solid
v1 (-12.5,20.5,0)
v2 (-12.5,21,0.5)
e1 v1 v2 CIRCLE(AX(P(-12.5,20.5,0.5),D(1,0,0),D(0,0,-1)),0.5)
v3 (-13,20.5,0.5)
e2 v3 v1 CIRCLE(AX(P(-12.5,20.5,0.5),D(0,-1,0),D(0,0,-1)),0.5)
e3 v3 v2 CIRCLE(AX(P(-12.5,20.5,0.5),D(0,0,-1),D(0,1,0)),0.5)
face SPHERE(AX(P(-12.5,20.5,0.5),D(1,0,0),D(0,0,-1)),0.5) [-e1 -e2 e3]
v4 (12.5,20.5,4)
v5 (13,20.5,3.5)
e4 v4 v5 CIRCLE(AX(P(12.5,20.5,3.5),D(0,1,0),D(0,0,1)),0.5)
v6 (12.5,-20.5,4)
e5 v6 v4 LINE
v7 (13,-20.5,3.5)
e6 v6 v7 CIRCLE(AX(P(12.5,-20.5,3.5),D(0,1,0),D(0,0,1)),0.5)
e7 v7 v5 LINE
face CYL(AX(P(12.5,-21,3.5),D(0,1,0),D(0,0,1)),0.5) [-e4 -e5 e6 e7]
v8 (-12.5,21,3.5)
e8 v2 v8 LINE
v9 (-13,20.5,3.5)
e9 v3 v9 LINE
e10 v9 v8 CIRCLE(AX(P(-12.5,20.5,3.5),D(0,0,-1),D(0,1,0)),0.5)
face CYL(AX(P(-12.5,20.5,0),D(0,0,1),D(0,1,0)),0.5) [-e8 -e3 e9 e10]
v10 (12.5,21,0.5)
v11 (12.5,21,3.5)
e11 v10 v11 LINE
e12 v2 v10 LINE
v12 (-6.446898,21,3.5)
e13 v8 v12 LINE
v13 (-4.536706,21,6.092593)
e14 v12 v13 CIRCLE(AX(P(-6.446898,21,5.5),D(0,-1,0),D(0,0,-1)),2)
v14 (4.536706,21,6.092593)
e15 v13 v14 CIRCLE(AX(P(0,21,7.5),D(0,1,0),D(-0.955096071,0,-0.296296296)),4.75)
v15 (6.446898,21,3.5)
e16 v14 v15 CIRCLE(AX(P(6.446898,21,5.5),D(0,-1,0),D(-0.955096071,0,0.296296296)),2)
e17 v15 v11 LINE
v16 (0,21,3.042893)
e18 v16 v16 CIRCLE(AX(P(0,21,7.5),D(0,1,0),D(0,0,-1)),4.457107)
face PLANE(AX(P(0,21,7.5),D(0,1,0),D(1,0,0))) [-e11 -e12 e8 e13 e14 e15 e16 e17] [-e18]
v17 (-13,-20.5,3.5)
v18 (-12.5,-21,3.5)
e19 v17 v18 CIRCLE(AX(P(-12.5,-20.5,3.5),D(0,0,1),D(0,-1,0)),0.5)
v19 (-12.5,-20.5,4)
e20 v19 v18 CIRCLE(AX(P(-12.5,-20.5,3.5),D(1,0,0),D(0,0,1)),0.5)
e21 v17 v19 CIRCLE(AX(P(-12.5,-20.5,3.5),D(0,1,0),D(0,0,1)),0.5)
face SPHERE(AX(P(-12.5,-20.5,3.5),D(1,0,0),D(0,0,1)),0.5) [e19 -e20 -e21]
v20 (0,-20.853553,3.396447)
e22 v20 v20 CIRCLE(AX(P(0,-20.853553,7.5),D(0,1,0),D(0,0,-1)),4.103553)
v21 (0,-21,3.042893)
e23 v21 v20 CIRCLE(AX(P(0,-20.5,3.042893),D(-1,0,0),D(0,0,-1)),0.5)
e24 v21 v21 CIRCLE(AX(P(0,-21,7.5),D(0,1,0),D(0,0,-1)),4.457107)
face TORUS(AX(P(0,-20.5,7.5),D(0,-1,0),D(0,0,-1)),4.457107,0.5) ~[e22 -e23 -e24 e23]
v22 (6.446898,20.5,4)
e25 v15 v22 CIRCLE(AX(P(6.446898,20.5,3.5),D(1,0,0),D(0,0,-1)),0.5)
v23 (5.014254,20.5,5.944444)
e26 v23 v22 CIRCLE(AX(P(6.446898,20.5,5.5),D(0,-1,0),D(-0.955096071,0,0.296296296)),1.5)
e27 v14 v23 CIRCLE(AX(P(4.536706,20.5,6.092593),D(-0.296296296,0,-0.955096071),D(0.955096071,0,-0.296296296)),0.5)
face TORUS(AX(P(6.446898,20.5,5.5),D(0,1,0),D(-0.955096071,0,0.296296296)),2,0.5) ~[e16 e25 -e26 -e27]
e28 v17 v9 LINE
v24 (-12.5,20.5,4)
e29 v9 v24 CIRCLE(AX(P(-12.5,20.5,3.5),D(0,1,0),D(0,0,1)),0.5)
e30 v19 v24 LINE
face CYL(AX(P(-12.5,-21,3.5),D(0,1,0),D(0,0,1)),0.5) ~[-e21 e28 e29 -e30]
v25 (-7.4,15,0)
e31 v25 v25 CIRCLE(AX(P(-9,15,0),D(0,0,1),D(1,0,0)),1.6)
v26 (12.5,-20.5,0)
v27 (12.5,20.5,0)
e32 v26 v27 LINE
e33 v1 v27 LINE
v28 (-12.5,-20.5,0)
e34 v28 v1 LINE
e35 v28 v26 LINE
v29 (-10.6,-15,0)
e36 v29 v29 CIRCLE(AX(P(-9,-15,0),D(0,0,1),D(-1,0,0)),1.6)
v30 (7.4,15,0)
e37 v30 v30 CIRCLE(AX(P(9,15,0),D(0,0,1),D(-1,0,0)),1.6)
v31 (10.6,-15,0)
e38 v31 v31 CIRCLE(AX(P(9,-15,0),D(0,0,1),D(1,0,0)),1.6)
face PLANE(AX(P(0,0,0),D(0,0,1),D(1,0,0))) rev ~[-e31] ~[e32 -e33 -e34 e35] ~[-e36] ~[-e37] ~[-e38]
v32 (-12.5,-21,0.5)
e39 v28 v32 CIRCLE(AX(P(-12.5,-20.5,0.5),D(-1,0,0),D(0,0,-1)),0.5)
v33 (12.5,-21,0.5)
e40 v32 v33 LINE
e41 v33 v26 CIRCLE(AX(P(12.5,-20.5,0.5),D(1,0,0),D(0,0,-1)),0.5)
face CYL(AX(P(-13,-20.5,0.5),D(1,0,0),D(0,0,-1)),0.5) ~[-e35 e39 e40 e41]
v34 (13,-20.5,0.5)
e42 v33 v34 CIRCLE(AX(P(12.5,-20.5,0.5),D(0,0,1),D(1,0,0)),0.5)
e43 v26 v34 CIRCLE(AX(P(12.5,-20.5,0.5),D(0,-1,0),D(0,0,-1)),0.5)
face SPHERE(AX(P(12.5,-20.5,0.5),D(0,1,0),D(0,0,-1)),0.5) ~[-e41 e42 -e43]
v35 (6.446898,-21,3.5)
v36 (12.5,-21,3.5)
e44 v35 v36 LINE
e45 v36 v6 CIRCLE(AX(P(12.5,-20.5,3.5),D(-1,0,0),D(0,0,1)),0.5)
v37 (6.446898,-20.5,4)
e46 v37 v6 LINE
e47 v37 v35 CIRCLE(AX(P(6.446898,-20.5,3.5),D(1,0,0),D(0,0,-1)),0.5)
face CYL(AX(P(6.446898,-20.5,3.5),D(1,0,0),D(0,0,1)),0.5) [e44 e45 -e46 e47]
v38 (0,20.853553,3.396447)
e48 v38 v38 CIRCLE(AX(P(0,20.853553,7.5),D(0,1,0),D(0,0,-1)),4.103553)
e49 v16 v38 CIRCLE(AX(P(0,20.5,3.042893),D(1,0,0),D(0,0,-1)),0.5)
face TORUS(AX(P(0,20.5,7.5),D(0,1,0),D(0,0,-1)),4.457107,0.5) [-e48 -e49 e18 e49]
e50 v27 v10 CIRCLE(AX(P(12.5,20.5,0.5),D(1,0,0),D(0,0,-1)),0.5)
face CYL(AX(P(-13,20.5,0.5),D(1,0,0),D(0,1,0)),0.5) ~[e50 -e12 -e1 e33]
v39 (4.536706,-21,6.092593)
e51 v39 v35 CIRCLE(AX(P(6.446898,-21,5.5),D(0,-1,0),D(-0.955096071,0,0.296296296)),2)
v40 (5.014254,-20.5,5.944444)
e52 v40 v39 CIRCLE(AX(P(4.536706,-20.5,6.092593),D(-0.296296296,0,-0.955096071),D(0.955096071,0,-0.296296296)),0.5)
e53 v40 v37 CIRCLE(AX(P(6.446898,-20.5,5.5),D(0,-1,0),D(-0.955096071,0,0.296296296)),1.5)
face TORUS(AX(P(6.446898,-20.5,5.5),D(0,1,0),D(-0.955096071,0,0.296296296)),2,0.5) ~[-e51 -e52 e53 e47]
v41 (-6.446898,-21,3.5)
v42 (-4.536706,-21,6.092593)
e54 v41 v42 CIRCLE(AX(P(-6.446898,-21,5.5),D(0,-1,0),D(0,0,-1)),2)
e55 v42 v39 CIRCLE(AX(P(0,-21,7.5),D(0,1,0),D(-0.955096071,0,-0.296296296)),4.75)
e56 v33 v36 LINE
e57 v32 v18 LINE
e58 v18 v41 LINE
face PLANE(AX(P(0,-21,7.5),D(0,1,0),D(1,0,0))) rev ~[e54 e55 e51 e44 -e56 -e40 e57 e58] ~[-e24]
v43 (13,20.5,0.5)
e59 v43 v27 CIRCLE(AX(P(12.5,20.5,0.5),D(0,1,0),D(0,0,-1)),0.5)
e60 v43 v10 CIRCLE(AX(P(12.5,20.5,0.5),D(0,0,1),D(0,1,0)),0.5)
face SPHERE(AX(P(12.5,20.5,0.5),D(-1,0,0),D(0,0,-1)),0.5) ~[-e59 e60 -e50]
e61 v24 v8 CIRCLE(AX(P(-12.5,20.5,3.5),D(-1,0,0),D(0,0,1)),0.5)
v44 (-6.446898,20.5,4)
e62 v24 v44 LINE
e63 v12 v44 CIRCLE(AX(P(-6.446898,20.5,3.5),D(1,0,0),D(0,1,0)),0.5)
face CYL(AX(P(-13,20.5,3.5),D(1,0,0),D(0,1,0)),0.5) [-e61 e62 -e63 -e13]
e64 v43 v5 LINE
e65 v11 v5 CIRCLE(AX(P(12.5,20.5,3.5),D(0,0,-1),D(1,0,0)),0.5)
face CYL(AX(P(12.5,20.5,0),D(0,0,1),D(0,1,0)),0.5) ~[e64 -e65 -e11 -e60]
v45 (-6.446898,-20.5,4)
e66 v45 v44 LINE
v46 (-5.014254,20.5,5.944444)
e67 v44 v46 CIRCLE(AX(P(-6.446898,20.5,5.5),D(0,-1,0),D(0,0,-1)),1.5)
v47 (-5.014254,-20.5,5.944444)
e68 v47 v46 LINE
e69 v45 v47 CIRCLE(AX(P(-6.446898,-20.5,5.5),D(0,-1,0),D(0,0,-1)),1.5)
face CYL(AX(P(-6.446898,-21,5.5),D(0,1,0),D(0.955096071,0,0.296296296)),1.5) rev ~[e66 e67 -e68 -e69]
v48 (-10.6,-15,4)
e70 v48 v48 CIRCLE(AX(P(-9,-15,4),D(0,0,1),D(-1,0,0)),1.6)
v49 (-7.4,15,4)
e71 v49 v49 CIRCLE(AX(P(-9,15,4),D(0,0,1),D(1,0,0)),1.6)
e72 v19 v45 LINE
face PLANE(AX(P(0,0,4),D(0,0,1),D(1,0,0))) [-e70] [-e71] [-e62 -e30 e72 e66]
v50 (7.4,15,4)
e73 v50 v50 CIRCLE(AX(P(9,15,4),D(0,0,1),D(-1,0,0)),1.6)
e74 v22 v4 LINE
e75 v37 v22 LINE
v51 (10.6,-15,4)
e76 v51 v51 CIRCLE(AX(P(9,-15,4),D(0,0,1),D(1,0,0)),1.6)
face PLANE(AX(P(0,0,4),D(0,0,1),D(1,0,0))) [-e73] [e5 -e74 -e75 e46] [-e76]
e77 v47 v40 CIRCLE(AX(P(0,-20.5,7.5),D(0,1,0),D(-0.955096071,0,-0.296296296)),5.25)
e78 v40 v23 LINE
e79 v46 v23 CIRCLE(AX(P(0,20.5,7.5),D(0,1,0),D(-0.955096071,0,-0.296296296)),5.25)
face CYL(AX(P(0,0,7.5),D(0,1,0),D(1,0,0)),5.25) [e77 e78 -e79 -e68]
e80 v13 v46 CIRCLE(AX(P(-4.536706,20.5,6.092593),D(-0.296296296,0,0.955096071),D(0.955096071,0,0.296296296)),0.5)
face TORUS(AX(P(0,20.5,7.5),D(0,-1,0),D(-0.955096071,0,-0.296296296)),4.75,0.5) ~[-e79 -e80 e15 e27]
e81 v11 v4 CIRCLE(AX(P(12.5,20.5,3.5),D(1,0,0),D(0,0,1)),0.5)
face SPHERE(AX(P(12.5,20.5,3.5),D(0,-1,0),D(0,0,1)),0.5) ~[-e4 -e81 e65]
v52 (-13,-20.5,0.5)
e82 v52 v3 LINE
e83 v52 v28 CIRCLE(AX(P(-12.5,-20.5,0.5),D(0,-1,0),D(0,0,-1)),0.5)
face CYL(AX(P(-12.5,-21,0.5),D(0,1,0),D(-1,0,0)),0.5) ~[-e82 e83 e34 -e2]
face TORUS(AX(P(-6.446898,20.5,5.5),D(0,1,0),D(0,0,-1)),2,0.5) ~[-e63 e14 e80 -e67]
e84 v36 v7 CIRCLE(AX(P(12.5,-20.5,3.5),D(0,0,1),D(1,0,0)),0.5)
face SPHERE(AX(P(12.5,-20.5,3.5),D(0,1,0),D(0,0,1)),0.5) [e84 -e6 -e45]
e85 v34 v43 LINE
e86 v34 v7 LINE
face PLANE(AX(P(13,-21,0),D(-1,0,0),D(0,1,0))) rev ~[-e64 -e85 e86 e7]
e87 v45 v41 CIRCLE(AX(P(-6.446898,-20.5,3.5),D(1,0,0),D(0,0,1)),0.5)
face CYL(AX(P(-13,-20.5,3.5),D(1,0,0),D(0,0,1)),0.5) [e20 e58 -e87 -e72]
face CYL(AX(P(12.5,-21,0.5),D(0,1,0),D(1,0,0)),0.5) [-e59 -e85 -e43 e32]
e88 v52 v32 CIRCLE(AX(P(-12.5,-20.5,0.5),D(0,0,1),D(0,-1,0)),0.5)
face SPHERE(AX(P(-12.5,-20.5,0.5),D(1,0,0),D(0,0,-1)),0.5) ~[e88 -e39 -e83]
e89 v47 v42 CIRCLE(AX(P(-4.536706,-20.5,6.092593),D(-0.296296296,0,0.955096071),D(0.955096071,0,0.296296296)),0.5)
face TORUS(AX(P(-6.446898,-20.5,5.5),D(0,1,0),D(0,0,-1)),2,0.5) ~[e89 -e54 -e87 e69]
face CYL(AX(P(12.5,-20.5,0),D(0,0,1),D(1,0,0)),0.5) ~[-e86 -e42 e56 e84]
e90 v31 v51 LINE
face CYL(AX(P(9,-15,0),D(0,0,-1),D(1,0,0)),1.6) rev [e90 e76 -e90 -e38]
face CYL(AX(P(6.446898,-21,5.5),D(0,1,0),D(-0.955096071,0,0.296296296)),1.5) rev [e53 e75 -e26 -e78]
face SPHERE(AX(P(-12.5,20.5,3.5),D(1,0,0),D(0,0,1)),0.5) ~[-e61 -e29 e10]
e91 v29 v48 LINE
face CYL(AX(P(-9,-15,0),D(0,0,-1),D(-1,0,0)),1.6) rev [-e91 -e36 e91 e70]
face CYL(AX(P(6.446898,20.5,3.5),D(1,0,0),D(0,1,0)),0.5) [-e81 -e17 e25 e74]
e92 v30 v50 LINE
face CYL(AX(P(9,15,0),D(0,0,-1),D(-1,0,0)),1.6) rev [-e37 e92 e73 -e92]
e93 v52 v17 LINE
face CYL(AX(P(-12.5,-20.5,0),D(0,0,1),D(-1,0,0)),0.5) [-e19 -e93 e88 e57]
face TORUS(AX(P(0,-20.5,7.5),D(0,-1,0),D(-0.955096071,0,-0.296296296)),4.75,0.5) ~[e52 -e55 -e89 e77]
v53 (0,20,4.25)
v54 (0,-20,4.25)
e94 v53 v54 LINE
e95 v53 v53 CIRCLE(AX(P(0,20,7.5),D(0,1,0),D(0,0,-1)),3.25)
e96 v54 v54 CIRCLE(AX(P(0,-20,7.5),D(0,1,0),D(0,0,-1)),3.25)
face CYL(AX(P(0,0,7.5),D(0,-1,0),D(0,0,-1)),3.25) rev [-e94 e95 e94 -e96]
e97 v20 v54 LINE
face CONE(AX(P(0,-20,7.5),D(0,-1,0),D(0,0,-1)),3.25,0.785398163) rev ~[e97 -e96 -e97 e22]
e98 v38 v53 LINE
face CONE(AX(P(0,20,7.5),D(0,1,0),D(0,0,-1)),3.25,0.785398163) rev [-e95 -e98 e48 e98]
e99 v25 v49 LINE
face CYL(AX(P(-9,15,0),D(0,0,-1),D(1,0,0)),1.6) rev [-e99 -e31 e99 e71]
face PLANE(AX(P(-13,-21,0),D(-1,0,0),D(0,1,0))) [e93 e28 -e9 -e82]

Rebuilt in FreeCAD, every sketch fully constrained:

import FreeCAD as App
import Part
import Sketcher


def edges_at(feature, points):
    """Names of the edges that pass closest to the given points."""
    edges = feature.Shape.Edges
    near = lambda p: min(range(len(edges)), key=lambda i: edges[i].distToShape(Part.Vertex(*p))[0])
    return sorted({f"Edge{near(p) + 1}" for p in points})


def add_polygon(sketch, points):
    """Adds a closed chain of lines whose ends are joined by coincident constraints."""
    first, n = sketch.GeometryCount, len(points)
    for a, b in zip(points, points[1:] + points[:1]):
        sketch.addGeometry(Part.LineSegment(App.Vector(*a, 0), App.Vector(*b, 0)), False)
    for i in range(n):
        sketch.addConstraint(Sketcher.Constraint("Coincident", first + i, 2, first + (i + 1) % n, 1))

doc = App.newDocument("Part")
params = doc.addObject("Spreadsheet::Sheet", "Params")
for row, (alias, value) in enumerate([
    ("sketch1_diameter", "3.2 mm"),
    ("sketch1_width", "26 mm"),
    ("sketch1_height", "42 mm"),
    ("pad1_length", "4 mm"),
    ("sketch2_diameter", "10.5 mm"),
    ("sketch2_diameter2", "6.5 mm"),
    ("pad2_length", "42 mm"),
    ("fillet_radius", "1.5 mm"),
    ("chamfer_size", "1 mm"),
    ("fillet2_radius", "0.5 mm"),
], start=1):
    params.set(f"A{row}", alias)
    params.set(f"B{row}", "=" + value)
    params.setAlias(f"B{row}", alias)

body = doc.addObject("PartDesign::Body", "Body")

sketch1 = doc.addObject("Sketcher::SketchObject", "Sketch")
body.addObject(sketch1)
sketch1.AttachmentSupport = (doc.XY_Plane, [""])
sketch1.MapMode = "FlatFace"
add_polygon(sketch1, [(-13, 21), (-13, -21), (13, -21), (13, 21)])
sketch1.addGeometry(Part.Circle(App.Vector(-9, -15, 0), App.Vector(0, 0, 1), 1.6), False)
sketch1.addGeometry(Part.Circle(App.Vector(9, -15, 0), App.Vector(0, 0, 1), 1.6), False)
sketch1.addGeometry(Part.Circle(App.Vector(-9, 15, 0), App.Vector(0, 0, 1), 1.6), False)
sketch1.addGeometry(Part.Circle(App.Vector(9, 15, 0), App.Vector(0, 0, 1), 1.6), False)
sketch1.addConstraint(Sketcher.Constraint("Vertical", 0))
sketch1.addConstraint(Sketcher.Constraint("Horizontal", 1))
sketch1.addConstraint(Sketcher.Constraint("Vertical", 2))
sketch1.addConstraint(Sketcher.Constraint("Horizontal", 3))
sketch1.addConstraint(Sketcher.Constraint("Equal", 4, 5))
sketch1.addConstraint(Sketcher.Constraint("Equal", 5, 6))
sketch1.addConstraint(Sketcher.Constraint("Equal", 6, 7))
sketch1.addConstraint(Sketcher.Constraint("Symmetric", 5, 3, 6, 3, -1, 1))
sketch1.addConstraint(Sketcher.Constraint("Symmetric", 4, 3, 7, 3, -1, 1))
sketch1.addConstraint(Sketcher.Constraint("Symmetric", 0, 2, 2, 2, -1, 1))
sketch1.addConstraint(Sketcher.Constraint("Symmetric", 4, 3, 5, 3, -2))
sketch1.addConstraint(Sketcher.Constraint("Diameter", 4, 3.2))
sketch1.addConstraint(Sketcher.Constraint("DistanceX", 1, 1, 1, 2, 26.0))
sketch1.addConstraint(Sketcher.Constraint("DistanceY", 0, 2, 0, 1, 42.0))
sketch1.addConstraint(Sketcher.Constraint("DistanceX", 4, 3, -1, 1, 9.0))
sketch1.addConstraint(Sketcher.Constraint("DistanceY", 4, 3, -1, 1, 15.0))
sketch1.setExpression("Constraints[15]", "Params.sketch1_diameter")
sketch1.setExpression("Constraints[16]", "Params.sketch1_width")
sketch1.setExpression("Constraints[17]", "Params.sketch1_height")
pad1 = doc.addObject("PartDesign::Pad", "Pad")
body.addObject(pad1)
pad1.Profile = sketch1
pad1.setExpression("Length", "Params.pad1_length")

sketch2 = doc.addObject("Sketcher::SketchObject", "Sketch001")
body.addObject(sketch2)
sketch2.AttachmentSupport = (doc.XZ_Plane, [""])
sketch2.MapMode = "FlatFace"
sketch2.addGeometry(Part.Circle(App.Vector(0, 7.5, 0), App.Vector(0, 0, 1), 5.25), False)
sketch2.addGeometry(Part.Circle(App.Vector(0, 7.5, 0), App.Vector(0, 0, 1), 3.25), False)
sketch2.addConstraint(Sketcher.Constraint("Coincident", 1, 3, 0, 3))
sketch2.addConstraint(Sketcher.Constraint("PointOnObject", 0, 3, -2))
sketch2.addConstraint(Sketcher.Constraint("Diameter", 0, 10.5))
sketch2.addConstraint(Sketcher.Constraint("Diameter", 1, 6.5))
sketch2.addConstraint(Sketcher.Constraint("DistanceY", -1, 1, 0, 3, 7.5))
sketch2.setExpression("Constraints[2]", "Params.sketch2_diameter")
sketch2.setExpression("Constraints[3]", "Params.sketch2_diameter2")
pad2 = doc.addObject("PartDesign::Pad", "Pad001")
body.addObject(pad2)
pad2.Profile = sketch2
pad2.setExpression("Length", "Params.pad2_length")
pad2.Midplane = True
doc.recompute()

fillet = doc.addObject("PartDesign::Fillet", "Fillet")
body.addObject(fillet)
fillet.Base = (pad2, edges_at(pad2, [(-3.913, 0, 4), (3.913, 0, 4)]))
fillet.setExpression("Radius", "Params.fillet_radius")
doc.recompute()

chamfer = doc.addObject("PartDesign::Chamfer", "Chamfer")
body.addObject(chamfer)
chamfer.Base = (fillet, edges_at(fillet, [(0, -21, 10.75), (0, 21, 10.75)]))
chamfer.setExpression("Size", "Params.chamfer_size")
doc.recompute()

fillet2 = doc.addObject("PartDesign::Fillet", "Fillet001")
body.addObject(fillet2)
fillet2.Base = (chamfer, edges_at(chamfer, [
    (13, 0, 4),
    (9.723, 21, 4),
    (9.723, -21, 4),
    (0, -21, 12.75),
    (0, 21, 12.75),
    (-9.723, 21, 4),
    (5.239, -21, 4.61),
    (5.239, 21, 4.61),
    (-13, 0, 4),
    (0, 21, 0),
    (-5.239, 21, 4.61),
    (-5.239, -21, 4.61),
    (13, 0, 0),
    (0, -21, 0),
    (0, -21, 11.75),
    (0, 21, 11.75),
    (-13, 0, 0),
    (-13, 21, 2),
    (13, 21, 2),
    (13, -21, 2),
    (-13, -21, 2),
    (-9.723, -21, 4),
]))
fillet2.setExpression("Radius", "Params.fillet2_radius")

doc.recompute()
